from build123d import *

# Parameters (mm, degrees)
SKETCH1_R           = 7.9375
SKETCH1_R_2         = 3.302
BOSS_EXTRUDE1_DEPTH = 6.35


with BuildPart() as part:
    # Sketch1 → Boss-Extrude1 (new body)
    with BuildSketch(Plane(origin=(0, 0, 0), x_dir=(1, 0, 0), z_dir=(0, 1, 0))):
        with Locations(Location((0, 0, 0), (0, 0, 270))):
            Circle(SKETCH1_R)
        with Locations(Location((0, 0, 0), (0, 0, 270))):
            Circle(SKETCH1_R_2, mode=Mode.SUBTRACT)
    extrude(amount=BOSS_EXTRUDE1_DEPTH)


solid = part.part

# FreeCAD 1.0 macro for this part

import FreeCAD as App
import Part
import Sketcher

V = App.Vector
Q = App.Units.Quantity

doc = App.newDocument("Part")
body = doc.addObject("PartDesign::Body", "Body")

sketch1 = doc.addObject("Sketcher::SketchObject", "Sketch")
body.addObject(sketch1)
sketch1.AttachmentSupport = (doc.XZ_Plane, [""])
sketch1.MapMode = "FlatFace"
sketch1.addGeometry(Part.Circle(V(0, 0, 0), V(0, 0, 1), 7.9), False)
sketch1.addGeometry(Part.Circle(V(0, 0, 0), V(0, 0, 1), 3.3), False)
sketch1.addConstraint(Sketcher.Constraint("Coincident", 0, 3, -1, 1))
sketch1.addConstraint(Sketcher.Constraint("Coincident", 1, 3, -1, 1))
sketch1.addConstraint(Sketcher.Constraint("Diameter", 1, Q("0.26 in")))
sketch1.addConstraint(Sketcher.Constraint("Diameter", 0, Q("0.625 in")))
pad1 = doc.addObject("PartDesign::Pad", "Pad")
body.addObject(pad1)
pad1.Profile = sketch1
pad1.Length = Q("0.25 in")
pad1.Reversed = True

doc.recompute()
